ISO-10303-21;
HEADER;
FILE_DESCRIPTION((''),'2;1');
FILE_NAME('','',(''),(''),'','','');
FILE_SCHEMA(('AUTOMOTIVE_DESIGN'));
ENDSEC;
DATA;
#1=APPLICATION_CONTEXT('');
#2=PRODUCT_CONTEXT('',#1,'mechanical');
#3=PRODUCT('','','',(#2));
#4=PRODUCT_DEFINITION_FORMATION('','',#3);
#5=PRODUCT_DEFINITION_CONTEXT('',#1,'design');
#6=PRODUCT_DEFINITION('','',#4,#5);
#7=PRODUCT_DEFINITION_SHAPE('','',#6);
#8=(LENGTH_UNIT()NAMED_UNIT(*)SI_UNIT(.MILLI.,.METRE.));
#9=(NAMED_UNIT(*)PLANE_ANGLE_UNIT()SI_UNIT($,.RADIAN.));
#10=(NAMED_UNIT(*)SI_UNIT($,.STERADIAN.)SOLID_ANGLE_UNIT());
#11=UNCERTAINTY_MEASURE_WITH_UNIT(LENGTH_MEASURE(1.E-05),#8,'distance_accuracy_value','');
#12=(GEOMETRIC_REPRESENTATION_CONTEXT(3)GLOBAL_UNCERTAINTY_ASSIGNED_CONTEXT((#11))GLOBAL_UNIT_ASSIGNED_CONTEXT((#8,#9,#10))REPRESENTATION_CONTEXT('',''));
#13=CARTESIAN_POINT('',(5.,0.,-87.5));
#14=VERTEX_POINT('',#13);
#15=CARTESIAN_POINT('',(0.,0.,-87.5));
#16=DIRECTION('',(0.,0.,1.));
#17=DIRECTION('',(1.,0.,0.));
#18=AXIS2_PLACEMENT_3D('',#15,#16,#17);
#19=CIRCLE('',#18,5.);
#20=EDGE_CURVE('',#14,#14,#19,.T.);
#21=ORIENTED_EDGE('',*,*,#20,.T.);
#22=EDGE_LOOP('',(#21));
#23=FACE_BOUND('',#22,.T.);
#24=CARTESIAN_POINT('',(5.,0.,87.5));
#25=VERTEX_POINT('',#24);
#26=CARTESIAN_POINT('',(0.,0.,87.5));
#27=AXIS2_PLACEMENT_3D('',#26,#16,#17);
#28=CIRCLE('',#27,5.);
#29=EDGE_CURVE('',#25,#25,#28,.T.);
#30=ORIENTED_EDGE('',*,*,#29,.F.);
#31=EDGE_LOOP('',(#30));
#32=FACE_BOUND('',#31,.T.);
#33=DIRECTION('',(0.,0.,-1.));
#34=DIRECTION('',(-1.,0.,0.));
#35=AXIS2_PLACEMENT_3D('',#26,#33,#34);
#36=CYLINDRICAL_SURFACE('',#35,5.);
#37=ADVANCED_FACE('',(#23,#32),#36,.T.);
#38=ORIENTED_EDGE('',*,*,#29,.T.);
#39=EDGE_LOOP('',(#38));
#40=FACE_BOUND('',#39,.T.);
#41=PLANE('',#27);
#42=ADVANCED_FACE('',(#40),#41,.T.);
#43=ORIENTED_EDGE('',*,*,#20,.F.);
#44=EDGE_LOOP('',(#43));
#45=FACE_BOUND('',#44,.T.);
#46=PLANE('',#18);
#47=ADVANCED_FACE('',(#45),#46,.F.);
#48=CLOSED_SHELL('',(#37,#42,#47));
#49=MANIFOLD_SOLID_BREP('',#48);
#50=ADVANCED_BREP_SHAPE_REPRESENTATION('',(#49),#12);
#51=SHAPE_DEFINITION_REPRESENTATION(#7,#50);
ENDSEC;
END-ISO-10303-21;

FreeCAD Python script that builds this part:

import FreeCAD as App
import Part
import Sketcher
Q = App.Units.Quantity

doc = App.newDocument("Part")
body = doc.addObject("PartDesign::Body", "Body")

# Sketch on XY plane
sketch1 = body.newObject("Sketcher::SketchObject", "Sketch")
sketch1.AttachmentSupport = (doc.getObject("XY_Plane"), [""])
sketch1.MapMode = "FlatFace"
sketch1.addGeometry(Part.Circle(App.Vector(0, 0, 0), App.Vector(0, 0, 1), 5), False)
sketch1.addConstraint(Sketcher.Constraint("Coincident", 0, 3, -1, 1))
sketch1.addConstraint(Sketcher.Constraint("Diameter", 0, Q("10 mm")))
pad1 = body.newObject("PartDesign::Pad", "Pad")
pad1.Profile = sketch1
pad1.Length = 175
pad1.Midplane = True

doc.recompute()
